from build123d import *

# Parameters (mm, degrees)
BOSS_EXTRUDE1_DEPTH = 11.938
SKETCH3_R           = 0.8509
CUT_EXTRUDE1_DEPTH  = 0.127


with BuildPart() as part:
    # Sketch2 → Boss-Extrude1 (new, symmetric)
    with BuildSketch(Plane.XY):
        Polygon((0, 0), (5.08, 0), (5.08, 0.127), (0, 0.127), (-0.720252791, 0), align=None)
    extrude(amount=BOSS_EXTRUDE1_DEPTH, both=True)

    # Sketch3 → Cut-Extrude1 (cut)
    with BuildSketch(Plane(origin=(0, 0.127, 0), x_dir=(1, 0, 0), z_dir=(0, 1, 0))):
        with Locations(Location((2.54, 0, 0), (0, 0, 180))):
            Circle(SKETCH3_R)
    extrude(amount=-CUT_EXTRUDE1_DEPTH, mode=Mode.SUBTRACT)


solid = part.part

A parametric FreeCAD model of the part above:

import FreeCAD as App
import Part
import Sketcher

V = App.Vector
Q = App.Units.Quantity


def add_polygon(sketch, points):
    """Adds a closed chain of lines whose ends are joined by coincident constraints."""
    first, n = sketch.GeometryCount, len(points)
    for a, b in zip(points, points[1:] + points[:1]):
        sketch.addGeometry(Part.LineSegment(App.Vector(*a, 0), App.Vector(*b, 0)), False)
    for i in range(n):
        sketch.addConstraint(Sketcher.Constraint("Coincident", first + i, 2, first + (i + 1) % n, 1))

doc = App.newDocument("Part")
params = doc.addObject("Spreadsheet::Sheet", "Params")
for row, (alias, value) in enumerate([
    ("sketch1_width", "0.2 in"),
    ("sketch1_height", "0.005 in"),
    ("pad1_length", "0.94 in"),
    ("sketch2_diameter", "0.067 in"),
    ("pocket1_length", "0.005 in"),
], start=1):
    params.set(f"A{row}", alias)
    params.set(f"B{row}", "=" + value)
    params.setAlias(f"B{row}", alias)

body = doc.addObject("PartDesign::Body", "Body")

sketch1 = doc.addObject("Sketcher::SketchObject", "Sketch")
body.addObject(sketch1)
sketch1.AttachmentSupport = (doc.XY_Plane, [""])
sketch1.MapMode = "FlatFace"
add_polygon(sketch1, [(5.08, 0), (5.08, 0.13), (0, 0.13), (-0.72, 0)])
sketch1.addConstraint([
    Sketcher.Constraint("Vertical", 0),
    Sketcher.Constraint("Horizontal", 1),
    Sketcher.Constraint("Horizontal", 3),
    Sketcher.Constraint("PointOnObject", 1, 2, -2),
    Sketcher.Constraint("PointOnObject", 2, 2, -1),
    Sketcher.Constraint("DistanceX", 1, 2, 1, 1, Q("0.2 in")),
    Sketcher.Constraint("Angle", 2, Q("-170 deg")),
    Sketcher.Constraint("DistanceY", 0, 1, 0, 2, Q("0.005 in")),
])
sketch1.setExpression("Constraints[9]", "Params.sketch1_width")
sketch1.setExpression("Constraints[11]", "Params.sketch1_height")
pad1 = doc.addObject("PartDesign::Pad", "Pad")
body.addObject(pad1)
pad1.Profile = sketch1
pad1.setExpression("Length", "Params.pad1_length")
pad1.Midplane = True

sketch2 = doc.addObject("Sketcher::SketchObject", "Sketch001")
body.addObject(sketch2)
sketch2.AttachmentSupport = (doc.XZ_Plane, [""])
sketch2.MapMode = "FlatFace"
sketch2.AttachmentOffset = App.Placement(V(0, 0, -0.005 * 25.4), App.Rotation())
sketch2.addGeometry(Part.Circle(V(2.5, 0, 0), V(0, 0, 1), 0.9), False)
sketch2.addConstraint([
    Sketcher.Constraint("PointOnObject", 0, 3, -1),
    Sketcher.Constraint("Diameter", 0, Q("0.067 in")),
    Sketcher.Constraint("DistanceX", -1, 1, 0, 3, Q("0.1 in")),
])
sketch2.setExpression("Constraints[1]", "Params.sketch2_diameter")
pocket1 = doc.addObject("PartDesign::Pocket", "Pocket")
body.addObject(pocket1)
pocket1.Profile = sketch2
pocket1.setExpression("Length", "Params.pocket1_length")
pocket1.Reversed = True

doc.recompute()
